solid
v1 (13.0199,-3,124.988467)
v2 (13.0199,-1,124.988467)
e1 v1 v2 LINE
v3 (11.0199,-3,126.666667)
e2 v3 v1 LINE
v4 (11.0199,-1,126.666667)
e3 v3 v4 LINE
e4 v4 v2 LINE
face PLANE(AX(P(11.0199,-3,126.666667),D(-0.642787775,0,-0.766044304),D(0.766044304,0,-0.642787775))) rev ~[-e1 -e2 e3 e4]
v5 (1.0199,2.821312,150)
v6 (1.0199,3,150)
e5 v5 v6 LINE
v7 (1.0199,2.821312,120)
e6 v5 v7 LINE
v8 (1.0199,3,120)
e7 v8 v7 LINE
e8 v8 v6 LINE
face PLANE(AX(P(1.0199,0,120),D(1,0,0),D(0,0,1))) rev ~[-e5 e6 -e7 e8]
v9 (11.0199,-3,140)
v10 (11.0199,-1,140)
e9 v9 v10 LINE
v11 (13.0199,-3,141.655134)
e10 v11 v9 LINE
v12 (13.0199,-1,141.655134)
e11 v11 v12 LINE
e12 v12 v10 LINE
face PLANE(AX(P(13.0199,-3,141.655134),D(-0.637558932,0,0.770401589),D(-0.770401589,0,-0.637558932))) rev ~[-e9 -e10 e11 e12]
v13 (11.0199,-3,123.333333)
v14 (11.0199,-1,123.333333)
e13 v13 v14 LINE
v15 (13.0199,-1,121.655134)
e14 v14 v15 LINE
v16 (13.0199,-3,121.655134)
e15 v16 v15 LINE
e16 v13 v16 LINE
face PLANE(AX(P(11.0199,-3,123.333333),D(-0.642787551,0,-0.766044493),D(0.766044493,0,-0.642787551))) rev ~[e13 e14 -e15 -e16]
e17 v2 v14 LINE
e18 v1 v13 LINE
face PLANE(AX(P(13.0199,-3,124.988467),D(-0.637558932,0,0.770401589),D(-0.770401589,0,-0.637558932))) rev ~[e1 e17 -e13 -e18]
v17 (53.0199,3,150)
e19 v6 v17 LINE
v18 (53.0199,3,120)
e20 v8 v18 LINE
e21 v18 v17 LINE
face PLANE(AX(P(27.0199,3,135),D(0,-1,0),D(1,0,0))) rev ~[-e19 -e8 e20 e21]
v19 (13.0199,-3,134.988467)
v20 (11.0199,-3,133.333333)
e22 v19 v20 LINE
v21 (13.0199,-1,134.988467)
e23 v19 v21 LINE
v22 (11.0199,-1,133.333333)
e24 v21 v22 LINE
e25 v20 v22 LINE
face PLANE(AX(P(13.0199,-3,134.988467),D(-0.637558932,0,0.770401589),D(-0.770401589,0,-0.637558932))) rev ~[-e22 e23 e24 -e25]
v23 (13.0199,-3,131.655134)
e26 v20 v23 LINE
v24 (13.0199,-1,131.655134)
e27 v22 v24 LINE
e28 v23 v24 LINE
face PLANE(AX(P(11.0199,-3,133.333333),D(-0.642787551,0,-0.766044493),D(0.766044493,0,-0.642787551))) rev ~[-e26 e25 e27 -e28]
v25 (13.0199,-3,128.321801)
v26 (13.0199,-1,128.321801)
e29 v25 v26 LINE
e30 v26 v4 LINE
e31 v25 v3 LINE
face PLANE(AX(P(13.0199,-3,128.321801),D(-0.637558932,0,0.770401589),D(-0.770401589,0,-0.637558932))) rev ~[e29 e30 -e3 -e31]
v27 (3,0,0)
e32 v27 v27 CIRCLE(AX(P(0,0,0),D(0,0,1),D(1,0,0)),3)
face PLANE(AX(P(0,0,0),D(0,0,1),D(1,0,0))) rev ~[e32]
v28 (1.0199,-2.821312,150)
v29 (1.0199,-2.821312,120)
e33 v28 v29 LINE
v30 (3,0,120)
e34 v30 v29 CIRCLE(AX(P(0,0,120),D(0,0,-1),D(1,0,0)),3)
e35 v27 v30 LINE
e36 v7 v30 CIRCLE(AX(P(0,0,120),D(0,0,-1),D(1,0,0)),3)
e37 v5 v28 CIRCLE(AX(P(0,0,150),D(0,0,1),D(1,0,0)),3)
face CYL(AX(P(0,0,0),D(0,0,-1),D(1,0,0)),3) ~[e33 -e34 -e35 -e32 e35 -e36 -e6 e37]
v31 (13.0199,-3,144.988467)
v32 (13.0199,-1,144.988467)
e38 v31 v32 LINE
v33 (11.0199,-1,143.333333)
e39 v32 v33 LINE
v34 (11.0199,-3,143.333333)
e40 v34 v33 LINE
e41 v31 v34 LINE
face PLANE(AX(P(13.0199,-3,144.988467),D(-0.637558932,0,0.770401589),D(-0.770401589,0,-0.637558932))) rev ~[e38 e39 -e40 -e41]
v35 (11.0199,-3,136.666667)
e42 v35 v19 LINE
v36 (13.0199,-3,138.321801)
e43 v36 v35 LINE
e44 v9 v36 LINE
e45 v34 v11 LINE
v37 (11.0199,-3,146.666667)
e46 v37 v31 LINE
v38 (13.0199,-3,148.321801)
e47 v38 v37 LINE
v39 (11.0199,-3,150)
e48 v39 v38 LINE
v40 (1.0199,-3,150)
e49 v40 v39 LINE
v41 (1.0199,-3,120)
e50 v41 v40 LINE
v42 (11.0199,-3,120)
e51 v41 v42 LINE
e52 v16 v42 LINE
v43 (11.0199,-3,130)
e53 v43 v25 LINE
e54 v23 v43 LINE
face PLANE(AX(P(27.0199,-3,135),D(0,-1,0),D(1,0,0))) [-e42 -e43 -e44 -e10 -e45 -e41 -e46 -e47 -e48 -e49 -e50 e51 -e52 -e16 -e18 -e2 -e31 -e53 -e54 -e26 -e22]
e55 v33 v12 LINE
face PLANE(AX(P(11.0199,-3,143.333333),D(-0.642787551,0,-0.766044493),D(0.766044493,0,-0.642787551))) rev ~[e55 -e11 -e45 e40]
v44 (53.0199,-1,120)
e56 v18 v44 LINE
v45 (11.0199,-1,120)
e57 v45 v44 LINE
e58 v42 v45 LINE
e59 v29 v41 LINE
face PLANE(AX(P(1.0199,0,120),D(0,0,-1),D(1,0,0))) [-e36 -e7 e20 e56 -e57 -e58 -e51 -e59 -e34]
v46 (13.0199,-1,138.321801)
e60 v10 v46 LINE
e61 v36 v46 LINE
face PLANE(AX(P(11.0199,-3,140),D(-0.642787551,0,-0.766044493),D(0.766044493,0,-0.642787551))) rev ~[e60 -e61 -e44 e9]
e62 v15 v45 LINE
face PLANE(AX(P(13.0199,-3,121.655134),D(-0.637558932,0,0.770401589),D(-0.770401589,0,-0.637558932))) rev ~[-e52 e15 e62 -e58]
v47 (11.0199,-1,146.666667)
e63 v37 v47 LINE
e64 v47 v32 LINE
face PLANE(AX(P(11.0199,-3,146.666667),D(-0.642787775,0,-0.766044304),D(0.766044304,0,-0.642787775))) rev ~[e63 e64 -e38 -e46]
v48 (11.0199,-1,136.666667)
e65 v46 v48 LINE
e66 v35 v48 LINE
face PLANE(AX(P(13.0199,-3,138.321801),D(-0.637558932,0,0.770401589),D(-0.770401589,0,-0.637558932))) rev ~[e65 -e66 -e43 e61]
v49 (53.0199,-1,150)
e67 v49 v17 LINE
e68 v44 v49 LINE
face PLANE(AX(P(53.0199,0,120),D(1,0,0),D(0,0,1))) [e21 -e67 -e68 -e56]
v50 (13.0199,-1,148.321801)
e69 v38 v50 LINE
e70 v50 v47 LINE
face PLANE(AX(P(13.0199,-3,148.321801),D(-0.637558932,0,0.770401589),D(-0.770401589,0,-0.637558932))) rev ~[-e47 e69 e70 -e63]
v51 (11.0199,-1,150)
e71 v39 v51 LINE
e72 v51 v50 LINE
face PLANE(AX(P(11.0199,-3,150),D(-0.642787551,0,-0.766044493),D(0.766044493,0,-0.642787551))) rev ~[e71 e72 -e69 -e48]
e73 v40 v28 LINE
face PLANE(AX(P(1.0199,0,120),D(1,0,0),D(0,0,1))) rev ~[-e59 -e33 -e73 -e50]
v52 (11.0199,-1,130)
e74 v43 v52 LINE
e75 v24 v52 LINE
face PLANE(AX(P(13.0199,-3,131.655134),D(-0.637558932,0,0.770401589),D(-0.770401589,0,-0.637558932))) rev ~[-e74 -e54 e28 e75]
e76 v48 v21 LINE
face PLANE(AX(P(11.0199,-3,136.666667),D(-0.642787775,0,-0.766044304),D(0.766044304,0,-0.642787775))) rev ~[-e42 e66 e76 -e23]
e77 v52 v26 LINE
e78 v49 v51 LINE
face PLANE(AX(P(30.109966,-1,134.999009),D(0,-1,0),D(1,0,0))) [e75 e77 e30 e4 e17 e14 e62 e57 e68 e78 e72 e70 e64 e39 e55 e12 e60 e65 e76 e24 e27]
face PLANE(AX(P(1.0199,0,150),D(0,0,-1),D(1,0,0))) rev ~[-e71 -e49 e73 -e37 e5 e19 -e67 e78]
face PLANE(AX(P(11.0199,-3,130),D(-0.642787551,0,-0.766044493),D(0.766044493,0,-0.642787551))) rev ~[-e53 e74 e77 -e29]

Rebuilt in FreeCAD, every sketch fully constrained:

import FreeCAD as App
import Part
import Sketcher
from FreeCAD import Vector
Q = App.Units.Quantity


def add_polygon(sketch, points):
    """Adds a closed chain of lines whose ends are joined by coincident constraints."""
    first, n = sketch.GeometryCount, len(points)
    for a, b in zip(points, points[1:] + points[:1]):
        sketch.addGeometry(Part.LineSegment(App.Vector(*a, 0), App.Vector(*b, 0)), False)
    for i in range(n):
        sketch.addConstraint(Sketcher.Constraint("Coincident", first + i, 2, first + (i + 1) % n, 1))

doc = App.newDocument("Part")
params = doc.addObject("Spreadsheet::Sheet", "Params")
for row, (alias, value) in enumerate([
    ("sketch1_diameter", "6 mm"),
    ("pad1_length", "150 mm"),
    ("sketch2_width", "52 mm"),
    ("sketch2_height", "30 mm"),
    ("pad2_length", "6 mm"),
    ("sketch3_width", "42 mm"),
    ("sketch3_height", "30 mm"),
    ("pocket1_length", "2 mm"),
], start=1):
    params.set(f"A{row}", alias)
    params.set(f"B{row}", "=" + value)
    params.setAlias(f"B{row}", alias)

body = doc.addObject("PartDesign::Body", "Body")

# Sketch on XY plane
sketch1 = body.newObject("Sketcher::SketchObject", "Sketch")
sketch1.AttachmentSupport = (doc.getObject("XY_Plane"), [""])
sketch1.MapMode = "FlatFace"
sketch1.addGeometry(Part.Circle(Vector(0, 0, 0), Vector(0, 0, 1), 3), False)
sketch1.addConstraint(Sketcher.Constraint("Coincident", 0, 3, -1, 1))
sketch1.addConstraint(Sketcher.Constraint("Diameter", 0, 6.0))
sketch1.setExpression("Constraints[1]", "Params.sketch1_diameter")
pad1 = body.newObject("PartDesign::Pad", "Pad")
pad1.Profile = sketch1
pad1.setExpression("Length", "Params.pad1_length")

# Sketch on XZ plane
sketch2 = body.newObject("Sketcher::SketchObject", "Sketch001")
sketch2.AttachmentSupport = (doc.getObject("XZ_Plane"), [""])
sketch2.MapMode = "FlatFace"
add_polygon(sketch2, [(1, 150), (1, 120), (53, 120), (53, 150)])  # lines 0-3
sketch2.addConstraint(Sketcher.Constraint("Vertical", 0))
sketch2.addConstraint(Sketcher.Constraint("Horizontal", 1))
sketch2.addConstraint(Sketcher.Constraint("Vertical", 2))
sketch2.addConstraint(Sketcher.Constraint("Horizontal", 3))
sketch2.addConstraint(Sketcher.Constraint("DistanceX", 1, 1, 1, 2, 52.0))
sketch2.addConstraint(Sketcher.Constraint("DistanceY", 0, 2, 0, 1, 30.0))
sketch2.addConstraint(Sketcher.Constraint("DistanceY", -1, 1, 0, 2, 120.0))
sketch2.addConstraint(Sketcher.Constraint("DistanceX", -1, 1, 0, 2, 1.0199))
sketch2.setExpression("Constraints[8]", "Params.sketch2_width")
sketch2.setExpression("Constraints[9]", "Params.sketch2_height")
pad2 = body.newObject("PartDesign::Pad", "Pad001")
pad2.Profile = sketch2
pad2.setExpression("Length", "Params.pad2_length")
pad2.Midplane = True

# Sketch on XZ plane
sketch3 = body.newObject("Sketcher::SketchObject", "Sketch002")
sketch3.AttachmentSupport = (doc.getObject("XZ_Plane"), [""])
sketch3.MapMode = "FlatFace"
sketch3.AttachmentOffset = App.Placement(Vector(0, 0, 3), App.Rotation())
add_polygon(sketch3, [(11, 120), (53, 120), (53, 150), (11, 150), (13, 148.3), (11, 146.7), (13, 145), (11, 143.3), (13, 141.7), (11, 140), (13, 138.3), (11, 136.7), (13, 135), (11, 133.3), (13, 131.7), (11, 130), (13, 128.3), (11, 126.7), (13, 125), (11, 123.3), (13, 121.7)])  # lines 0-20
sketch3.addConstraint(Sketcher.Constraint("Horizontal", 0))
sketch3.addConstraint(Sketcher.Constraint("Vertical", 1))
sketch3.addConstraint(Sketcher.Constraint("Horizontal", 2))
sketch3.addConstraint(Sketcher.Constraint("Parallel", 3, 5))
sketch3.addConstraint(Sketcher.Constraint("Parallel", 4, 6))
sketch3.addConstraint(Sketcher.Constraint("Parallel", 5, 7))
sketch3.addConstraint(Sketcher.Constraint("Parallel", 6, 8))
sketch3.addConstraint(Sketcher.Constraint("Parallel", 7, 9))
sketch3.addConstraint(Sketcher.Constraint("Parallel", 8, 10))
sketch3.addConstraint(Sketcher.Constraint("Parallel", 9, 11))
sketch3.addConstraint(Sketcher.Constraint("Parallel", 10, 12))
sketch3.addConstraint(Sketcher.Constraint("Parallel", 11, 13))
sketch3.addConstraint(Sketcher.Constraint("Parallel", 12, 14))
sketch3.addConstraint(Sketcher.Constraint("Parallel", 13, 15))
sketch3.addConstraint(Sketcher.Constraint("Parallel", 14, 16))
sketch3.addConstraint(Sketcher.Constraint("Parallel", 15, 17))
sketch3.addConstraint(Sketcher.Constraint("Parallel", 16, 18))
sketch3.addConstraint(Sketcher.Constraint("Parallel", 17, 19))
sketch3.addConstraint(Sketcher.Constraint("Parallel", 18, 20))
sketch3.addConstraint(Sketcher.Constraint("Vertical", 2, 2, 4, 2))
sketch3.addConstraint(Sketcher.Constraint("Vertical", 3, 2, 5, 2))
sketch3.addConstraint(Sketcher.Constraint("Vertical", 4, 2, 6, 2))
sketch3.addConstraint(Sketcher.Constraint("Vertical", 5, 2, 7, 2))
sketch3.addConstraint(Sketcher.Constraint("Vertical", 6, 2, 8, 2))
sketch3.addConstraint(Sketcher.Constraint("Vertical", 7, 2, 9, 2))
sketch3.addConstraint(Sketcher.Constraint("Vertical", 8, 2, 10, 2))
sketch3.addConstraint(Sketcher.Constraint("Vertical", 9, 2, 11, 2))
sketch3.addConstraint(Sketcher.Constraint("Vertical", 10, 2, 12, 2))
sketch3.addConstraint(Sketcher.Constraint("Vertical", 11, 2, 13, 2))
sketch3.addConstraint(Sketcher.Constraint("Vertical", 12, 2, 14, 2))
sketch3.addConstraint(Sketcher.Constraint("Vertical", 13, 2, 15, 2))
sketch3.addConstraint(Sketcher.Constraint("Vertical", 14, 2, 16, 2))
sketch3.addConstraint(Sketcher.Constraint("Vertical", 15, 2, 17, 2))
sketch3.addConstraint(Sketcher.Constraint("Vertical", 16, 2, 18, 2))
sketch3.addConstraint(Sketcher.Constraint("Vertical", 17, 2, 19, 2))
sketch3.addConstraint(Sketcher.Constraint("Vertical", 18, 2, 20, 2))
sketch3.addConstraint(Sketcher.Constraint("DistanceX", 0, 1, 0, 2, 42.0))
sketch3.addConstraint(Sketcher.Constraint("DistanceY", 1, 1, 1, 2, 30.0))
sketch3.addConstraint(Sketcher.Constraint("Angle", 3, Q("-39.999996 deg")))
sketch3.addConstraint(Sketcher.Constraint("DistanceY", -1, 1, 0, 2, 120.0))
sketch3.addConstraint(Sketcher.Constraint("DistanceX", 2, 2, 3, 2, 2.0))
sketch3.addConstraint(Sketcher.Constraint("DistanceX", -1, 1, 0, 2, 53.0199))
sketch3.setExpression("Constraints[57]", "Params.sketch3_width")
sketch3.setExpression("Constraints[58]", "Params.sketch3_height")
pocket1 = body.newObject("PartDesign::Pocket", "Pocket")
pocket1.Profile = sketch3
pocket1.setExpression("Length", "Params.pocket1_length")

doc.recompute()
